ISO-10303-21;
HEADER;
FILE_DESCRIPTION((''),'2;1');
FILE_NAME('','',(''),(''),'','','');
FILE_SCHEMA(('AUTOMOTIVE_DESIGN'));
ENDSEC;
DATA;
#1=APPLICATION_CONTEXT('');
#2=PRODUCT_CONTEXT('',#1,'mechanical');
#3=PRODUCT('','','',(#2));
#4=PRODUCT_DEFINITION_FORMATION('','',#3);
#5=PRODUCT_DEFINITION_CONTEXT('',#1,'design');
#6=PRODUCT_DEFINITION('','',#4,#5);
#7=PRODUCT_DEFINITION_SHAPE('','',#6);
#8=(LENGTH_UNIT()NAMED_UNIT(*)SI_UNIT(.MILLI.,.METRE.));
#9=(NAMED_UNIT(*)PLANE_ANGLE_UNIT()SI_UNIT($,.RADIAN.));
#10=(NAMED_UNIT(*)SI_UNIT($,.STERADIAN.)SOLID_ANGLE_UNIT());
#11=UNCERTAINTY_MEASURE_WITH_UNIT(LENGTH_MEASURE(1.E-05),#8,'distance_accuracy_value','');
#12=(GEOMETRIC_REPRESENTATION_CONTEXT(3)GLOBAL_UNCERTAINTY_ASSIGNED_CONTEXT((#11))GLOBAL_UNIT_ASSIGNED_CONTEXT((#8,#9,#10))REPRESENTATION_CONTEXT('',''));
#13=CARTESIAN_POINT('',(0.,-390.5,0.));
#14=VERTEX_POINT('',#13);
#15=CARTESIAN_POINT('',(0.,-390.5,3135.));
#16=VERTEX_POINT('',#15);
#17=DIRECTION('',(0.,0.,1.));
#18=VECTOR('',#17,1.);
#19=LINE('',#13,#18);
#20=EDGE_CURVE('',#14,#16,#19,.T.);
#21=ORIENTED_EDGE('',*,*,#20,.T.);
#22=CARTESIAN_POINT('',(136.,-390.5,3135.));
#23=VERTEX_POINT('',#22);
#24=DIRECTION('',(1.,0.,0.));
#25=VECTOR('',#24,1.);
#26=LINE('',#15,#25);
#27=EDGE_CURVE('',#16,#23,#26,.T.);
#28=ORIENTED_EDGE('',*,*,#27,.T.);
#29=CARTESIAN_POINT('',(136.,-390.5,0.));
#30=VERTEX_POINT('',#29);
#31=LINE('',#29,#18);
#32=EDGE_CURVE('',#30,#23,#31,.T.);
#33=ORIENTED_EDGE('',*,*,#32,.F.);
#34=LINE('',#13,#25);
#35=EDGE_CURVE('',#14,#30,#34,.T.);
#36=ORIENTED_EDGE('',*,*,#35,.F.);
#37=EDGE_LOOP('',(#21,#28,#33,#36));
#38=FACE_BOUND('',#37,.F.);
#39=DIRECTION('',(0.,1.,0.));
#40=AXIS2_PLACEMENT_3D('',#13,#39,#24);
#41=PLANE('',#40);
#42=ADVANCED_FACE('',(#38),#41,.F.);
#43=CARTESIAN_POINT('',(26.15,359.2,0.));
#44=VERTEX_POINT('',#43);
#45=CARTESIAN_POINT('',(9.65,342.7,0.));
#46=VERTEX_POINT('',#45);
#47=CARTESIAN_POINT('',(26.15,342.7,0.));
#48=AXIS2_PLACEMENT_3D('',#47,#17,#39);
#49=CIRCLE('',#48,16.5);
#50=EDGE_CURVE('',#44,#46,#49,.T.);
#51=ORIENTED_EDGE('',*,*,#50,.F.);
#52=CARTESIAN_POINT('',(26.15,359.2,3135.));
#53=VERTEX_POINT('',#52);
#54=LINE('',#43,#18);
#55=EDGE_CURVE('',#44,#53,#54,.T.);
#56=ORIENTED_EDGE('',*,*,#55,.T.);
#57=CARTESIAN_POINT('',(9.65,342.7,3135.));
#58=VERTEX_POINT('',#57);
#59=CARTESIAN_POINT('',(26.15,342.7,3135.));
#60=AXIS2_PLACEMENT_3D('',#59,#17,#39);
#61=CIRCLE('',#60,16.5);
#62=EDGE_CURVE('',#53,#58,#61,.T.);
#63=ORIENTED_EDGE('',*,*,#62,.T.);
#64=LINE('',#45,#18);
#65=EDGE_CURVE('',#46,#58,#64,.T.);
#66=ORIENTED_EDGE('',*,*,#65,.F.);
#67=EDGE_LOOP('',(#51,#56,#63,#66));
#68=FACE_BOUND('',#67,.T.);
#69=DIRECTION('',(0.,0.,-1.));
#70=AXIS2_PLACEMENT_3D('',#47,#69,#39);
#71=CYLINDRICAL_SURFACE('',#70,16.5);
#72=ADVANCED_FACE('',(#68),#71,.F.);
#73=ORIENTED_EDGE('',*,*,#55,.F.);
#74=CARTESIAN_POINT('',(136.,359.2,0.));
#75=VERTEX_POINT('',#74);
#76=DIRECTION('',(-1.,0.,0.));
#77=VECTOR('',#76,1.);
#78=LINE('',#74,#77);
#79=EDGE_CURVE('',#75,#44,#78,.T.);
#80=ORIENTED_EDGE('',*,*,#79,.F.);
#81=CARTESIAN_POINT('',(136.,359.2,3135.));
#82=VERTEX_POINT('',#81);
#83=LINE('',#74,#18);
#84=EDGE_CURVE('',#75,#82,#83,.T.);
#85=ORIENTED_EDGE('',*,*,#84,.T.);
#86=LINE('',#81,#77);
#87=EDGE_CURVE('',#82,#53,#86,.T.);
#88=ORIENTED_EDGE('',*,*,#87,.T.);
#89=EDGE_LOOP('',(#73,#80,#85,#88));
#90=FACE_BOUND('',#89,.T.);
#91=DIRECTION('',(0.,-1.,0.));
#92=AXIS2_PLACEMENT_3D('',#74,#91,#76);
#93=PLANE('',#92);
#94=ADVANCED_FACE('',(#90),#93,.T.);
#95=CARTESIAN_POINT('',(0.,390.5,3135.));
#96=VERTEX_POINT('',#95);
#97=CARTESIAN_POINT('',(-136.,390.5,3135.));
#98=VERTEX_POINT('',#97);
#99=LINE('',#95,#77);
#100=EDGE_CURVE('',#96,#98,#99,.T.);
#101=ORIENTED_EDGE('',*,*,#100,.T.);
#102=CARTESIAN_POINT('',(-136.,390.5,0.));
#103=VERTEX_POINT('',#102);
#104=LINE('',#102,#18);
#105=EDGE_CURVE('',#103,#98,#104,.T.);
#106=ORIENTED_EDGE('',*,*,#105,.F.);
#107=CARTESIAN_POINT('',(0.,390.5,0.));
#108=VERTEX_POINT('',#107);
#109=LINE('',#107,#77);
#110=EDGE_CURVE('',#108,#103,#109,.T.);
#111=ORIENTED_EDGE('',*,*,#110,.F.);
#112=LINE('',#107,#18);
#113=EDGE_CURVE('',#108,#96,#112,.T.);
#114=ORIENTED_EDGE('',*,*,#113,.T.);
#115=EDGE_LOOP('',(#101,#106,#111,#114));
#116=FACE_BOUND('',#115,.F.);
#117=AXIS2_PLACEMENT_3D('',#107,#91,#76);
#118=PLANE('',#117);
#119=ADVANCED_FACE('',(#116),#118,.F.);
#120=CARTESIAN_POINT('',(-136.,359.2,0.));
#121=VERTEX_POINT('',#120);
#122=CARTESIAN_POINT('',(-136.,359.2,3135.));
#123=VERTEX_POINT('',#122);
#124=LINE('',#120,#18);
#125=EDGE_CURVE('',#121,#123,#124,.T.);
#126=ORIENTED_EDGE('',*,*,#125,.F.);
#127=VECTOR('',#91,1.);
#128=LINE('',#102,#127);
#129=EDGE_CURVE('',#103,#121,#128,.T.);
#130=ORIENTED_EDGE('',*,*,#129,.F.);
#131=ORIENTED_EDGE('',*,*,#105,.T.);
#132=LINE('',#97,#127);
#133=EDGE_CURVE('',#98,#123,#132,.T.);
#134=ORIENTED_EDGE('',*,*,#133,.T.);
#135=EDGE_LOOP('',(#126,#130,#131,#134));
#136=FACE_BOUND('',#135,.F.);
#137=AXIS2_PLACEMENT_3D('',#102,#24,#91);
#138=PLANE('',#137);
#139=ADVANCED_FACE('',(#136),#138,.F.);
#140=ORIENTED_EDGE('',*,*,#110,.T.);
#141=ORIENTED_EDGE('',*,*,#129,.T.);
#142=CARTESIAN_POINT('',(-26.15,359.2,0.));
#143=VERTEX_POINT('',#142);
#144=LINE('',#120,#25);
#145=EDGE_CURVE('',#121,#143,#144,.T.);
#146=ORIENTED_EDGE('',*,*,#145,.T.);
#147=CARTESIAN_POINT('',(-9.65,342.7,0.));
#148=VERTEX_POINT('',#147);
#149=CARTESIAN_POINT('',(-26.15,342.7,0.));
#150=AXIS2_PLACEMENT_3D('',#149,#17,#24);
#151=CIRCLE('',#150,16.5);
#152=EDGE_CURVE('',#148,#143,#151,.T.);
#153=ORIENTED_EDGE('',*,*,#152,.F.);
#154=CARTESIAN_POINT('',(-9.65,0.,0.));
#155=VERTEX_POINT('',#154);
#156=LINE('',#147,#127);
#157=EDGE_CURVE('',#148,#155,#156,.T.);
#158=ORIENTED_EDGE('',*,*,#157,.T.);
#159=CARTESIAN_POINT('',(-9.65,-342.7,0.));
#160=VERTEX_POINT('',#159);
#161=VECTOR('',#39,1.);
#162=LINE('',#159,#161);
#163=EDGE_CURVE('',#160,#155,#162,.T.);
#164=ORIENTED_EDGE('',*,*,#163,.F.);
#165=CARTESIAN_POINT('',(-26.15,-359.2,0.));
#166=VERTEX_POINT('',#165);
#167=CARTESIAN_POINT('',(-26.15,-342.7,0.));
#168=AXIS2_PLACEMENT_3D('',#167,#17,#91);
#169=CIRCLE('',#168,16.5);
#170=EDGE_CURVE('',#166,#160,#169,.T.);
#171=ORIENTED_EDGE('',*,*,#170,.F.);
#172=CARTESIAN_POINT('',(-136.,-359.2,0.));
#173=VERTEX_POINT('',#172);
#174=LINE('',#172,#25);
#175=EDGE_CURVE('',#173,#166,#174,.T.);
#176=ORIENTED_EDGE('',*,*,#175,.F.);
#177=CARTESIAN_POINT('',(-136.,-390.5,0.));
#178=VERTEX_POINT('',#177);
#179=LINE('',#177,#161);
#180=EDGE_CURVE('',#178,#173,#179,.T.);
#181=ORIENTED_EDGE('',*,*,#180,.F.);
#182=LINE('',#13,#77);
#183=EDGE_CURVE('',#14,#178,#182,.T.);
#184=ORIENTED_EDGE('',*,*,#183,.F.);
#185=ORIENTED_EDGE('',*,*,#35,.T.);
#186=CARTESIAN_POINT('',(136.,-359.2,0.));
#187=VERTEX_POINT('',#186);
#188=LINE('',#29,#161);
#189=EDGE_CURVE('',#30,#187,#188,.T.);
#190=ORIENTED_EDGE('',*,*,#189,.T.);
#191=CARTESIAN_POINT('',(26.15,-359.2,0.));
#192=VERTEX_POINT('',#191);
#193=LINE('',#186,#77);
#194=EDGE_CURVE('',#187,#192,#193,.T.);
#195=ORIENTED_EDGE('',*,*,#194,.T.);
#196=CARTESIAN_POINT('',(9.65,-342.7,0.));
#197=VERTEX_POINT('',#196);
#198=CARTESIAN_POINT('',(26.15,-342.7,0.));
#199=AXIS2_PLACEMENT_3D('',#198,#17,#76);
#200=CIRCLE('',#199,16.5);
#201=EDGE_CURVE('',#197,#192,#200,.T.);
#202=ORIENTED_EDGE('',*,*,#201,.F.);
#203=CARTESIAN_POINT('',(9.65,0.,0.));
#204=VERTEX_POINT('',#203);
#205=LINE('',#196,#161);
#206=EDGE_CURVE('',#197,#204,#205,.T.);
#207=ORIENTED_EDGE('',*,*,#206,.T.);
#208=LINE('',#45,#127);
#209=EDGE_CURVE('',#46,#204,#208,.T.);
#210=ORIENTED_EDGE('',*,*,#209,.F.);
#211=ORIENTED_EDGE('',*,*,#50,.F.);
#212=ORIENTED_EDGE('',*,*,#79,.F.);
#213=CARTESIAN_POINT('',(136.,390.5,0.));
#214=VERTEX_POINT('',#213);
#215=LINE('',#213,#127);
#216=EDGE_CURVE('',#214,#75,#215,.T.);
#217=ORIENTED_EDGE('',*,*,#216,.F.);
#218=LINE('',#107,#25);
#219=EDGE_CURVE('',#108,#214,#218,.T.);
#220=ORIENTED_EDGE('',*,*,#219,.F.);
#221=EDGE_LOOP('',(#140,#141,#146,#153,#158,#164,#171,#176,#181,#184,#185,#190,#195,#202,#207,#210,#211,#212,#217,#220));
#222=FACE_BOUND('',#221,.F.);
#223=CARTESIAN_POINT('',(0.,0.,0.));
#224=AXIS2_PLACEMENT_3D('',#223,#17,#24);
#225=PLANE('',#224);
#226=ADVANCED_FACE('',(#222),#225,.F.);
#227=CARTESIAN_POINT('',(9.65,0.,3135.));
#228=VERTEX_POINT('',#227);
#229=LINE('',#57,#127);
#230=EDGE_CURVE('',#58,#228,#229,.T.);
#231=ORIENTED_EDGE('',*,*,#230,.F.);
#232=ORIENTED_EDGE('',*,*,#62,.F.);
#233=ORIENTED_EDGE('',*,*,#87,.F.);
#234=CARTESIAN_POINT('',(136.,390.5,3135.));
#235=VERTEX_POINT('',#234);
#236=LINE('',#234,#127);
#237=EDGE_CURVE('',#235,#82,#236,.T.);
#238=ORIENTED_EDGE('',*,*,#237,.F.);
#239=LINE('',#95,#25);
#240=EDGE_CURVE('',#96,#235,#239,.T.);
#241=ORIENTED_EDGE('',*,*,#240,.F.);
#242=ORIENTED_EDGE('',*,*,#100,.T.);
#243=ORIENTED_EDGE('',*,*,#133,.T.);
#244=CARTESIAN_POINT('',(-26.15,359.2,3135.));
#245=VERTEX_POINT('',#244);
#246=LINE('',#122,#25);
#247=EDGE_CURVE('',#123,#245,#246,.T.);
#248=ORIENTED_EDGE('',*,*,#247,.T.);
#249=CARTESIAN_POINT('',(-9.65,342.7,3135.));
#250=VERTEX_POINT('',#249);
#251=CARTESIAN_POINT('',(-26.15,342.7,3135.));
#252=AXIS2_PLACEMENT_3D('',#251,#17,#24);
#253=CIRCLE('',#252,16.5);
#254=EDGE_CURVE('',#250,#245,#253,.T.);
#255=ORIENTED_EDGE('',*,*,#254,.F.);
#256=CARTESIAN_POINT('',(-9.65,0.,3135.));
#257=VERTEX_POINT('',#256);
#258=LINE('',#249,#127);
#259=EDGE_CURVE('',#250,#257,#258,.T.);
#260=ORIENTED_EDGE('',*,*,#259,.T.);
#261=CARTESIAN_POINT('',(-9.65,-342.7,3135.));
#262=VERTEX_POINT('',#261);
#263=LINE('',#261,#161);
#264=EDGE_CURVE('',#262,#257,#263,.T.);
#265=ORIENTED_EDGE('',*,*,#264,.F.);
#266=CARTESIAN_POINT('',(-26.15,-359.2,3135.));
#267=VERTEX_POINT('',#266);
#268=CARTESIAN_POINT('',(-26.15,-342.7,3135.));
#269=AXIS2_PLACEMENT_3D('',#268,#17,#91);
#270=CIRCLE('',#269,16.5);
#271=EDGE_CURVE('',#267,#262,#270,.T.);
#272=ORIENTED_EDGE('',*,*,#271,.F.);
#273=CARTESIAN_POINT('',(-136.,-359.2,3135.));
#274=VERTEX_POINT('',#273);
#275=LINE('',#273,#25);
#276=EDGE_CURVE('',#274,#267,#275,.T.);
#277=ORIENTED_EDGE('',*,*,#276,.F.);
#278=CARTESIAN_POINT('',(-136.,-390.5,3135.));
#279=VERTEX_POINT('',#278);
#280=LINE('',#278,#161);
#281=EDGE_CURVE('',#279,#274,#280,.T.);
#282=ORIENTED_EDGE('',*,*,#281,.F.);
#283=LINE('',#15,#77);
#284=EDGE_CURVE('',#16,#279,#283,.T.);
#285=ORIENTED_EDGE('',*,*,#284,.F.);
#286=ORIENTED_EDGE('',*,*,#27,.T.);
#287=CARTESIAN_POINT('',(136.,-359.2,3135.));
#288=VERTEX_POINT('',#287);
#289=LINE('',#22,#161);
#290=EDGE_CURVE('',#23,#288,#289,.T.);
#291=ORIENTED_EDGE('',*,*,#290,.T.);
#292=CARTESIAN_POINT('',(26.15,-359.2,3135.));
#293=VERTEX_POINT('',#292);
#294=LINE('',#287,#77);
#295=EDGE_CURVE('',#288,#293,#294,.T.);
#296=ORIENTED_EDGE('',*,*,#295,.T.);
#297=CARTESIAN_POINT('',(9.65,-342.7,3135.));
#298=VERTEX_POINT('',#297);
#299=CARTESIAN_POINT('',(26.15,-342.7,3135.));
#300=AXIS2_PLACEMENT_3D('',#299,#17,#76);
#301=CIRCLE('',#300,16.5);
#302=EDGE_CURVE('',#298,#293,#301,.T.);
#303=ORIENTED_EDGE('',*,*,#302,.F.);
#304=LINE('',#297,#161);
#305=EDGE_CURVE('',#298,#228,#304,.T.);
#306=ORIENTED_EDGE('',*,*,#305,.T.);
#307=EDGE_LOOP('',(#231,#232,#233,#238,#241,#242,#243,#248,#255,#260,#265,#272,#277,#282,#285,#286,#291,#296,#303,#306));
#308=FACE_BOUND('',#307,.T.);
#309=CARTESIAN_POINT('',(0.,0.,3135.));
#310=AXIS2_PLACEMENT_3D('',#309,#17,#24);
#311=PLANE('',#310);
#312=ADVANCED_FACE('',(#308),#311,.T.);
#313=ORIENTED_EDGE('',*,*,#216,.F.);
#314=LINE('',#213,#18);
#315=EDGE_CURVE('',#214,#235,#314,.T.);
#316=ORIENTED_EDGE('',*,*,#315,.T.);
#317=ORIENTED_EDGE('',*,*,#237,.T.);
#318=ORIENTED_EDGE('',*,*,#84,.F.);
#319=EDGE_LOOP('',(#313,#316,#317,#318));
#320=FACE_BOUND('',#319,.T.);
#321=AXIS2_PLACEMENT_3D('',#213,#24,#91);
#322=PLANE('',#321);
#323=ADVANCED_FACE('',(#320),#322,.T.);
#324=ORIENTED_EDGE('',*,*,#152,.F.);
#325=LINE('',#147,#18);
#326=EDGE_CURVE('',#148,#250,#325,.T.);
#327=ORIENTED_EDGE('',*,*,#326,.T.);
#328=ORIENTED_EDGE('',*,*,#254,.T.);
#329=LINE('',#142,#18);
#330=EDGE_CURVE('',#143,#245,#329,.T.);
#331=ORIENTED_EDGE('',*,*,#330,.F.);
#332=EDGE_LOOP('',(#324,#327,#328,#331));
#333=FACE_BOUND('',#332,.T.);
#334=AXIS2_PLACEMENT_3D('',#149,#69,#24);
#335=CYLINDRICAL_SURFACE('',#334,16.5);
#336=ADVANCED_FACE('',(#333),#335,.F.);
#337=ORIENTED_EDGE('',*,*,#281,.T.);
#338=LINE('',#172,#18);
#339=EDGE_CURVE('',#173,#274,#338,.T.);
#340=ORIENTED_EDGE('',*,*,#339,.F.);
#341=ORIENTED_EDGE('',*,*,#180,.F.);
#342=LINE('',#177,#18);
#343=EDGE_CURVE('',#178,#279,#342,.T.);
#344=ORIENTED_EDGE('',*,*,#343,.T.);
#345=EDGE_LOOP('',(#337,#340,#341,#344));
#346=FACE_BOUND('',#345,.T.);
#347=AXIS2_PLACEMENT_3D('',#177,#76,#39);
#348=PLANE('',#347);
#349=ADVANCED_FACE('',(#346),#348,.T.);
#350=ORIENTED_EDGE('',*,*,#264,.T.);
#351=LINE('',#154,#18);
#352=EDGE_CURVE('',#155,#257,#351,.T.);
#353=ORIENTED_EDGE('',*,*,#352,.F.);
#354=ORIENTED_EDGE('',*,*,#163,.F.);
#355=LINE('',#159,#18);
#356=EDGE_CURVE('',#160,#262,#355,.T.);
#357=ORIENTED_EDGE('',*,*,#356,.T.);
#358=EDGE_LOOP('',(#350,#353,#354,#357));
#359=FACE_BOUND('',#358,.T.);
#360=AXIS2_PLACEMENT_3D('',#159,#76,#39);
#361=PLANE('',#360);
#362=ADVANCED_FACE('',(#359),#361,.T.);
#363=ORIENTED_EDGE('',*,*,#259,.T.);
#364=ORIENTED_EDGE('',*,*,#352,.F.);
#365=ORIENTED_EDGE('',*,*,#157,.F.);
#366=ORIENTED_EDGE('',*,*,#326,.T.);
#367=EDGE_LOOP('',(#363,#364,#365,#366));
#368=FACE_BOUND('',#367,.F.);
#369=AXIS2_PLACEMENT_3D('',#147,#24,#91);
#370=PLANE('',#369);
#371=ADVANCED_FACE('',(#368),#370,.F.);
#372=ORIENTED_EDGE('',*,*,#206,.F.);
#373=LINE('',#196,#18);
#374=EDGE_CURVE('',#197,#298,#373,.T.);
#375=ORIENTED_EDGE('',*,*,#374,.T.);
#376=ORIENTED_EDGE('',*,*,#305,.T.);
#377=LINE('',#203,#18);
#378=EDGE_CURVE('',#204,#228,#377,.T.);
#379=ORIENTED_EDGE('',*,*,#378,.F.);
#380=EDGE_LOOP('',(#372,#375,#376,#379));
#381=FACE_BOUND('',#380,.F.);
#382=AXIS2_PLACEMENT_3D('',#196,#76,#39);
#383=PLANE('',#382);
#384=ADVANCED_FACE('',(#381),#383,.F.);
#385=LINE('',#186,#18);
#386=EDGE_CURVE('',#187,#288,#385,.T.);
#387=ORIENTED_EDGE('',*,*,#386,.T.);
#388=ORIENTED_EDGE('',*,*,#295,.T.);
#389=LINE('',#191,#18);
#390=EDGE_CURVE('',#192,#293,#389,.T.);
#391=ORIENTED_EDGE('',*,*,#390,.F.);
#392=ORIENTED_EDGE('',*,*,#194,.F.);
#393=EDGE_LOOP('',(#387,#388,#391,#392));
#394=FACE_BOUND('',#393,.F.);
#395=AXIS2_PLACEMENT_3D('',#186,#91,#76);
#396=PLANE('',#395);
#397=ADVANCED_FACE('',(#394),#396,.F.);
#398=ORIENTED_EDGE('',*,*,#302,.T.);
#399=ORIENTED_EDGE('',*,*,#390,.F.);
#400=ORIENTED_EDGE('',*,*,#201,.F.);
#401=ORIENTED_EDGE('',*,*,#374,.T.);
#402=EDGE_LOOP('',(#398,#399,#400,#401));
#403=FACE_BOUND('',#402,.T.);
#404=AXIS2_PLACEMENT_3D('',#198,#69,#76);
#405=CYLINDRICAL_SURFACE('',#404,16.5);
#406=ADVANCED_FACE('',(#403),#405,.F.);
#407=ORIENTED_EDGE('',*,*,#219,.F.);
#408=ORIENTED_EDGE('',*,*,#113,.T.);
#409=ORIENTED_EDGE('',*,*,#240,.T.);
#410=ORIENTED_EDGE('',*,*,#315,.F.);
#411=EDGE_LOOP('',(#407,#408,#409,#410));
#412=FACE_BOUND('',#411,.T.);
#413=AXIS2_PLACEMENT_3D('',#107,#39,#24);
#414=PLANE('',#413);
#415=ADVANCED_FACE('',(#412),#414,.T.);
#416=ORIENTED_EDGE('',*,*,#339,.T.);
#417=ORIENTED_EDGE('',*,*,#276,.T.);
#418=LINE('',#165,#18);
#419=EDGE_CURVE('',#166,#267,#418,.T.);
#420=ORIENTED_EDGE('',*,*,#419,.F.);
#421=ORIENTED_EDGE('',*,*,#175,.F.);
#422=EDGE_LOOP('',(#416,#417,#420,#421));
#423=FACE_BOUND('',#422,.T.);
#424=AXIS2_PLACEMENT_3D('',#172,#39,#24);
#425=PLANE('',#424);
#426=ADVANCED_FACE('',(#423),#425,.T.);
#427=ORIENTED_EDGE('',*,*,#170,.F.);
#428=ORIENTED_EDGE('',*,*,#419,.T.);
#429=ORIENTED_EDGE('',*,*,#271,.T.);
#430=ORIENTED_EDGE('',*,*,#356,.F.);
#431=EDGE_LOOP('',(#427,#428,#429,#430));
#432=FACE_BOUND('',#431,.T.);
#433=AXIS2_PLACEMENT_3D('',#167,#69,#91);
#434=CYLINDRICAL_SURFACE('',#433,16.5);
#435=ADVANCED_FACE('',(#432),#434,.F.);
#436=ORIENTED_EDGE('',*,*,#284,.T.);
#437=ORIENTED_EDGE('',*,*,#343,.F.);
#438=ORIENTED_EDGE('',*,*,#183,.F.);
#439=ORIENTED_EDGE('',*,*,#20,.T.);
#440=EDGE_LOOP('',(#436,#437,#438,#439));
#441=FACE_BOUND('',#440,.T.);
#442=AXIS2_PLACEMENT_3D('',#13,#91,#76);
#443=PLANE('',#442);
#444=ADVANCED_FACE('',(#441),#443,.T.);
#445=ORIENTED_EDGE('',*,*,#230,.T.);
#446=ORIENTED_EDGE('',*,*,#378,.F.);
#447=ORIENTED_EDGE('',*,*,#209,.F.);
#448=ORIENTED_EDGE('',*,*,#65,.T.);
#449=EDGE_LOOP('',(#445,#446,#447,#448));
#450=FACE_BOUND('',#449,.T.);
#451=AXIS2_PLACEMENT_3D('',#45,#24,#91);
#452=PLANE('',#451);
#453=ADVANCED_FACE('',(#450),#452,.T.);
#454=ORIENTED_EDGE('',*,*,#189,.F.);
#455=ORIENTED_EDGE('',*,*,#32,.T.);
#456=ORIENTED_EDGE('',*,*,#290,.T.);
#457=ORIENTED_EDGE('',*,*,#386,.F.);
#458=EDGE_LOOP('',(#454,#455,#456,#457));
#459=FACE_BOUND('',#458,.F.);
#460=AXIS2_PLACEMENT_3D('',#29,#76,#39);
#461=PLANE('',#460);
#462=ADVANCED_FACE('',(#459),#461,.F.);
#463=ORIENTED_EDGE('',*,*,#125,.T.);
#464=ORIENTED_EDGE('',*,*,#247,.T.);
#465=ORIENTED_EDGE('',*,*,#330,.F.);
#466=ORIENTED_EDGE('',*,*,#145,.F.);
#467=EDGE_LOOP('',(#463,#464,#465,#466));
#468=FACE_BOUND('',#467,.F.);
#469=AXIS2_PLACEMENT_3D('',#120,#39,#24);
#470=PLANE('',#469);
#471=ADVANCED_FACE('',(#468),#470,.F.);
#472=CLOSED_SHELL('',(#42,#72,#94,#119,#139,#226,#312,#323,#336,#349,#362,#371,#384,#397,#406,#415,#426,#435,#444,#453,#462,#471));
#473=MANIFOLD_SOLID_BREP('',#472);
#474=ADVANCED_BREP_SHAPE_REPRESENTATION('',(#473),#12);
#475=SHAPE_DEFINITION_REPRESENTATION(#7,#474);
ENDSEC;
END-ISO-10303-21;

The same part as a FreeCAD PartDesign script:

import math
import FreeCAD as App
import Part
import Sketcher
Q = App.Units.Quantity

doc = App.newDocument("Part")
body = doc.addObject("PartDesign::Body", "Body")

# Sketch on XY plane
sketch1 = body.newObject("Sketcher::SketchObject", "Sketch")
sketch1.AttachmentSupport = (doc.getObject("XY_Plane"), [""])
sketch1.MapMode = "FlatFace"
sketch1.addGeometry(Part.LineSegment(App.Vector(-136, -359, 0), App.Vector(-136, -390, 0)), False)
sketch1.addGeometry(Part.LineSegment(App.Vector(-136, -390, 0), App.Vector(136, -390, 0)), False)
sketch1.addGeometry(Part.LineSegment(App.Vector(136, -390, 0), App.Vector(136, -359, 0)), False)
sketch1.addGeometry(Part.LineSegment(App.Vector(136, -359, 0), App.Vector(26, -359, 0)), False)
sketch1.addGeometry(Part.ArcOfCircle(Part.Circle(App.Vector(26, -343, 0), App.Vector(0, 0, 1), 16), math.radians(180), math.radians(270)), False)
sketch1.addGeometry(Part.LineSegment(App.Vector(10, -343, 0), App.Vector(10, 343, 0)), False)
sketch1.addGeometry(Part.ArcOfCircle(Part.Circle(App.Vector(26, 343, 0), App.Vector(0, 0, 1), 16), math.radians(90), math.radians(180)), False)
sketch1.addGeometry(Part.LineSegment(App.Vector(26, 359, 0), App.Vector(136, 359, 0)), False)
sketch1.addGeometry(Part.LineSegment(App.Vector(136, 359, 0), App.Vector(136, 390, 0)), False)
sketch1.addGeometry(Part.LineSegment(App.Vector(136, 390, 0), App.Vector(-136, 390, 0)), False)
sketch1.addGeometry(Part.LineSegment(App.Vector(-136, 390, 0), App.Vector(-136, 359, 0)), False)
sketch1.addGeometry(Part.LineSegment(App.Vector(-136, 359, 0), App.Vector(-26, 359, 0)), False)
sketch1.addGeometry(Part.ArcOfCircle(Part.Circle(App.Vector(-26, 343, 0), App.Vector(0, 0, 1), 16), math.radians(0), math.radians(90)), False)
sketch1.addGeometry(Part.LineSegment(App.Vector(-10, 343, 0), App.Vector(-10, -343, 0)), False)
sketch1.addGeometry(Part.ArcOfCircle(Part.Circle(App.Vector(-26, -343, 0), App.Vector(0, 0, 1), 16), math.radians(-90), math.radians(0)), False)
sketch1.addGeometry(Part.LineSegment(App.Vector(-26, -359, 0), App.Vector(-136, -359, 0)), False)
sketch1.addConstraint(Sketcher.Constraint("Coincident", 0, 2, 1, 1))
sketch1.addConstraint(Sketcher.Constraint("Coincident", 1, 2, 2, 1))
sketch1.addConstraint(Sketcher.Constraint("Coincident", 2, 2, 3, 1))
sketch1.addConstraint(Sketcher.Constraint("Tangent", 3, 2, 4, 2))
sketch1.addConstraint(Sketcher.Constraint("Tangent", 4, 1, 5, 1))
sketch1.addConstraint(Sketcher.Constraint("Tangent", 5, 2, 6, 2))
sketch1.addConstraint(Sketcher.Constraint("Tangent", 6, 1, 7, 1))
sketch1.addConstraint(Sketcher.Constraint("Coincident", 7, 2, 8, 1))
sketch1.addConstraint(Sketcher.Constraint("Coincident", 8, 2, 9, 1))
sketch1.addConstraint(Sketcher.Constraint("Coincident", 9, 2, 10, 1))
sketch1.addConstraint(Sketcher.Constraint("Coincident", 10, 2, 11, 1))
sketch1.addConstraint(Sketcher.Constraint("Tangent", 11, 2, 12, 2))
sketch1.addConstraint(Sketcher.Constraint("Tangent", 12, 1, 13, 1))
sketch1.addConstraint(Sketcher.Constraint("Tangent", 13, 2, 14, 2))
sketch1.addConstraint(Sketcher.Constraint("Tangent", 14, 1, 15, 1))
sketch1.addConstraint(Sketcher.Constraint("Coincident", 15, 2, 0, 1))
sketch1.addConstraint(Sketcher.Constraint("Vertical", 0))
sketch1.addConstraint(Sketcher.Constraint("Horizontal", 1))
sketch1.addConstraint(Sketcher.Constraint("Vertical", 2))
sketch1.addConstraint(Sketcher.Constraint("Horizontal", 3))
sketch1.addConstraint(Sketcher.Constraint("Vertical", 5))
sketch1.addConstraint(Sketcher.Constraint("Horizontal", 7))
sketch1.addConstraint(Sketcher.Constraint("Vertical", 8))
sketch1.addConstraint(Sketcher.Constraint("Horizontal", 9))
sketch1.addConstraint(Sketcher.Constraint("Vertical", 10))
sketch1.addConstraint(Sketcher.Constraint("Horizontal", 11))
sketch1.addConstraint(Sketcher.Constraint("Vertical", 13))
sketch1.addConstraint(Sketcher.Constraint("Horizontal", 15))
sketch1.addConstraint(Sketcher.Constraint("Equal", 4, 6))
sketch1.addConstraint(Sketcher.Constraint("Equal", 6, 12))
sketch1.addConstraint(Sketcher.Constraint("Equal", 12, 14))
sketch1.addConstraint(Sketcher.Constraint("Symmetric", 4, 3, 12, 3, -1, 1))
sketch1.addConstraint(Sketcher.Constraint("Symmetric", 0, 2, 8, 2, -1, 1))
sketch1.addConstraint(Sketcher.Constraint("Symmetric", 7, 2, 10, 2, -2))
sketch1.addConstraint(Sketcher.Constraint("Symmetric", 2, 2, 15, 2, -2))
sketch1.addConstraint(Sketcher.Constraint("Radius", 4, Q("16.5 mm")))
sketch1.addConstraint(Sketcher.Constraint("DistanceY", 0, 2, 0, 1, Q("31.3 mm")))
sketch1.addConstraint(Sketcher.Constraint("DistanceX", 0, 2, -1, 1, Q("136 mm")))
sketch1.addConstraint(Sketcher.Constraint("DistanceY", 0, 2, -1, 1, Q("390.5 mm")))
sketch1.addConstraint(Sketcher.Constraint("DistanceX", -1, 1, 4, 1, Q("9.65 mm")))
pad1 = body.newObject("PartDesign::Pad", "Pad")
pad1.Profile = sketch1
pad1.Length = 3135

doc.recompute()
